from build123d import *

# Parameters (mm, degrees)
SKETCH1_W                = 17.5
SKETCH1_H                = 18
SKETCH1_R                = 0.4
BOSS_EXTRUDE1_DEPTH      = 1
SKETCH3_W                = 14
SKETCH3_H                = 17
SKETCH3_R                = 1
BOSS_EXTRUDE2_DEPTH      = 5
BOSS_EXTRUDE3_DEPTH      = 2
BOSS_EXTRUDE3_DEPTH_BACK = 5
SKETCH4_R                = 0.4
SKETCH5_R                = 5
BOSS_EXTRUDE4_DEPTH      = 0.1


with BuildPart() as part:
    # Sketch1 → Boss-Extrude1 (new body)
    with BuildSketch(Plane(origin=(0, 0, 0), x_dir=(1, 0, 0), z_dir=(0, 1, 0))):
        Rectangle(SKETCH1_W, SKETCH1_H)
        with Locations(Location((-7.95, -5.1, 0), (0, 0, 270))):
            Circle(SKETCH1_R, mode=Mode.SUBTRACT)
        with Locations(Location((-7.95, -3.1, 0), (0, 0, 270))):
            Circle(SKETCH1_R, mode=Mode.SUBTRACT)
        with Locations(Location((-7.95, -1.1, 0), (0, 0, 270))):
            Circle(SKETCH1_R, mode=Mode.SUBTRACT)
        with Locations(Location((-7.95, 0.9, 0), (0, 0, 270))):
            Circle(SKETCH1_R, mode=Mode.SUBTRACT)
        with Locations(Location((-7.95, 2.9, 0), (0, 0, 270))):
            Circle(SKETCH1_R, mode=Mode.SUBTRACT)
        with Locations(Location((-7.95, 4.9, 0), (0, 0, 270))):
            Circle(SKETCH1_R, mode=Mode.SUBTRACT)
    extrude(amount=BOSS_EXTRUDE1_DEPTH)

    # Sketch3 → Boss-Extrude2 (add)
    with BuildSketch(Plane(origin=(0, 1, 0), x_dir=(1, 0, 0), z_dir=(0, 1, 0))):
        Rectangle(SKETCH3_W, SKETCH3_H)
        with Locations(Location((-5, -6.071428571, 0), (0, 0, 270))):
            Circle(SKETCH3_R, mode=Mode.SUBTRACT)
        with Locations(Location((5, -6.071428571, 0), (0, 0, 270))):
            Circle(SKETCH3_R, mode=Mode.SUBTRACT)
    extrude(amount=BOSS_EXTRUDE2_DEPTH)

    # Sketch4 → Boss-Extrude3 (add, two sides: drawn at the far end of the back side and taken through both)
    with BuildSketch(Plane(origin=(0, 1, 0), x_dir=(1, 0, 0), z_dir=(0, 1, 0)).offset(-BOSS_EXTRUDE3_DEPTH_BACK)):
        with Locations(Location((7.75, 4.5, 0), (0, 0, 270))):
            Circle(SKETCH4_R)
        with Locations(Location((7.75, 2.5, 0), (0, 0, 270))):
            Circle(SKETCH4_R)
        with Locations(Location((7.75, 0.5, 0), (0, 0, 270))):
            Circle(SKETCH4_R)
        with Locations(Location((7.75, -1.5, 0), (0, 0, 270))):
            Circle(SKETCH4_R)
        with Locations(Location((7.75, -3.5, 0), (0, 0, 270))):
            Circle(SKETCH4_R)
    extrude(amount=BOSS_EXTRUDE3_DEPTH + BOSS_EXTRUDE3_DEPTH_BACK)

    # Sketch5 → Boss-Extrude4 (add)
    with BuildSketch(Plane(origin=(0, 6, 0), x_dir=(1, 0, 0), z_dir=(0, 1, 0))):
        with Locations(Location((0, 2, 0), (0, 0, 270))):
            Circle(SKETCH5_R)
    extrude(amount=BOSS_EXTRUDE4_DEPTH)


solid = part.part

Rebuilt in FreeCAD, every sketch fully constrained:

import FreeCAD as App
import Part
import Sketcher
from FreeCAD import Vector
Q = App.Units.Quantity

doc = App.newDocument("Part")
body = doc.addObject("PartDesign::Body", "Body")

# Sketch on XZ plane
sketch1 = doc.addObject("Sketcher::SketchObject", "Sketch")
body.addObject(sketch1)
sketch1.AttachmentSupport = (doc.XZ_Plane, [""])
sketch1.MapMode = "FlatFace"
sketch1.addGeometry([
    Part.LineSegment(Vector(-8.75, -9, 0), Vector(-8.75, 9, 0)),  # 0
    Part.LineSegment(Vector(-8.75, 9, 0), Vector(8.75, 9, 0)),  # 1
    Part.LineSegment(Vector(8.75, 9, 0), Vector(8.75, -9, 0)),  # 2
    Part.LineSegment(Vector(8.75, -9, 0), Vector(-8.75, -9, 0)),  # 3
    Part.Circle(Vector(-7.95, 5.1, 0), Vector(0, 0, 1), 0.4),  # 4
    Part.Circle(Vector(-7.95, 3.1, 0), Vector(0, 0, 1), 0.4),  # 5
    Part.Circle(Vector(-7.95, 1.1, 0), Vector(0, 0, 1), 0.4),  # 6
    Part.Circle(Vector(-7.95, -4.9, 0), Vector(0, 0, 1), 0.4),  # 7
    Part.Circle(Vector(-7.95, -0.9, 0), Vector(0, 0, 1), 0.4),  # 8
    Part.Circle(Vector(-7.95, -2.9, 0), Vector(0, 0, 1), 0.4),  # 9
], False)
sketch1.addConstraint([
    Sketcher.Constraint("Coincident", 0, 2, 1, 1),
    Sketcher.Constraint("Coincident", 1, 2, 2, 1),
    Sketcher.Constraint("Coincident", 2, 2, 3, 1),
    Sketcher.Constraint("Coincident", 3, 2, 0, 1),
    Sketcher.Constraint("Vertical", 0),
    Sketcher.Constraint("Horizontal", 1),
    Sketcher.Constraint("Vertical", 2),
    Sketcher.Constraint("Horizontal", 3),
    Sketcher.Constraint("Equal", 4, 5),
    Sketcher.Constraint("Equal", 5, 6),
    Sketcher.Constraint("Equal", 6, 7),
    Sketcher.Constraint("Equal", 7, 8),
    Sketcher.Constraint("Equal", 8, 9),
    Sketcher.Constraint("Symmetric", 0, 2, 2, 2, -1, 1),
    Sketcher.Constraint("Vertical", 4, 3, 5, 3),
    Sketcher.Constraint("Vertical", 5, 3, 6, 3),
    Sketcher.Constraint("Vertical", 6, 3, 7, 3),
    Sketcher.Constraint("Vertical", 7, 3, 8, 3),
    Sketcher.Constraint("Vertical", 8, 3, 9, 3),
    Sketcher.Constraint("Diameter", 4, Q("0.8 mm")),
    Sketcher.Constraint("DistanceY", 0, 1, 0, 2, Q("18 mm")),
    Sketcher.Constraint("DistanceX", 1, 1, 1, 2, Q("17.5 mm")),
    Sketcher.Constraint("DistanceY", 5, 3, 4, 3, Q("2 mm")),
    Sketcher.Constraint("DistanceY", 6, 3, 5, 3, Q("2 mm")),
    Sketcher.Constraint("DistanceY", 7, 3, 6, 3, Q("6 mm")),
    Sketcher.Constraint("DistanceY", 8, 3, 6, 3, Q("2 mm")),
    Sketcher.Constraint("DistanceY", 9, 3, 8, 3, Q("2 mm")),
    Sketcher.Constraint("DistanceY", -1, 1, 4, 3, Q("5.1 mm")),
    Sketcher.Constraint("DistanceX", 0, 2, 4, 3, Q("0.8 mm")),
])
pad1 = doc.addObject("PartDesign::Pad", "Pad")
body.addObject(pad1)
pad1.Profile = sketch1
pad1.Length = 1
pad1.Reversed = True

# Sketch on XZ plane
sketch2 = doc.addObject("Sketcher::SketchObject", "Sketch001")
body.addObject(sketch2)
sketch2.AttachmentSupport = (doc.XZ_Plane, [""])
sketch2.MapMode = "FlatFace"
sketch2.AttachmentOffset = App.Placement(Vector(0, 0, -1), App.Rotation())
sketch2.addGeometry([
    Part.LineSegment(Vector(-7, -8.5, 0), Vector(-7, 8.5, 0)),  # 0
    Part.LineSegment(Vector(-7, 8.5, 0), Vector(7, 8.5, 0)),  # 1
    Part.LineSegment(Vector(7, 8.5, 0), Vector(7, -8.5, 0)),  # 2
    Part.LineSegment(Vector(7, -8.5, 0), Vector(-7, -8.5, 0)),  # 3
    Part.Circle(Vector(-5, 6.1, 0), Vector(0, 0, 1), 1),  # 4
    Part.Circle(Vector(5, 6.1, 0), Vector(0, 0, 1), 1),  # 5
], False)
sketch2.addConstraint([
    Sketcher.Constraint("Coincident", 0, 2, 1, 1),
    Sketcher.Constraint("Coincident", 1, 2, 2, 1),
    Sketcher.Constraint("Coincident", 2, 2, 3, 1),
    Sketcher.Constraint("Coincident", 3, 2, 0, 1),
    Sketcher.Constraint("Vertical", 0),
    Sketcher.Constraint("Horizontal", 1),
    Sketcher.Constraint("Vertical", 2),
    Sketcher.Constraint("Horizontal", 3),
    Sketcher.Constraint("Equal", 4, 5),
    Sketcher.Constraint("Symmetric", 0, 2, 2, 2, -1, 1),
    Sketcher.Constraint("Symmetric", 4, 3, 5, 3, -2),
    Sketcher.Constraint("Diameter", 4, Q("2 mm")),
    Sketcher.Constraint("DistanceX", 1, 1, 1, 2, Q("14 mm")),
    Sketcher.Constraint("DistanceY", 0, 1, 0, 2, Q("17 mm")),
    Sketcher.Constraint("DistanceX", 4, 3, -1, 1, Q("5 mm")),
    Sketcher.Constraint("DistanceY", -1, 1, 4, 3, Q("6.071429 mm")),
])
pad2 = doc.addObject("PartDesign::Pad", "Pad001")
body.addObject(pad2)
pad2.Profile = sketch2
pad2.Length = 5
pad2.Reversed = True

# Sketch on XZ plane
sketch3 = doc.addObject("Sketcher::SketchObject", "Sketch002")
body.addObject(sketch3)
sketch3.AttachmentSupport = (doc.XZ_Plane, [""])
sketch3.MapMode = "FlatFace"
sketch3.AttachmentOffset = App.Placement(Vector(0, 0, -1), App.Rotation())
sketch3.addGeometry([
    Part.Circle(Vector(7.75, -4.5, 0), Vector(0, 0, 1), 0.4),  # 0
    Part.Circle(Vector(7.75, -2.5, 0), Vector(0, 0, 1), 0.4),  # 1
    Part.Circle(Vector(7.75, -0.5, 0), Vector(0, 0, 1), 0.4),  # 2
    Part.Circle(Vector(7.75, 1.5, 0), Vector(0, 0, 1), 0.4),  # 3
    Part.Circle(Vector(7.75, 3.5, 0), Vector(0, 0, 1), 0.4),  # 4
], False)
sketch3.addConstraint([
    Sketcher.Constraint("Equal", 0, 1),
    Sketcher.Constraint("Equal", 1, 2),
    Sketcher.Constraint("Equal", 2, 3),
    Sketcher.Constraint("Equal", 3, 4),
    Sketcher.Constraint("Vertical", 0, 3, 1, 3),
    Sketcher.Constraint("Vertical", 1, 3, 2, 3),
    Sketcher.Constraint("Vertical", 2, 3, 3, 3),
    Sketcher.Constraint("Vertical", 3, 3, 4, 3),
    Sketcher.Constraint("Diameter", 0, Q("0.8 mm")),
    Sketcher.Constraint("DistanceY", 0, 3, 1, 3, Q("2 mm")),
    Sketcher.Constraint("DistanceY", 1, 3, 2, 3, Q("2 mm")),
    Sketcher.Constraint("DistanceY", 2, 3, 3, 3, Q("2 mm")),
    Sketcher.Constraint("DistanceY", 3, 3, 4, 3, Q("2 mm")),
    Sketcher.Constraint("DistanceY", 0, 3, -1, 1, Q("4.5 mm")),
    Sketcher.Constraint("DistanceX", -1, 1, 0, 3, Q("7.75 mm")),
])
pad3 = doc.addObject("PartDesign::Pad", "Pad002")
body.addObject(pad3)
pad3.Profile = sketch3
pad3.Type = "TwoLengths"
pad3.Length = 2
pad3.Length2 = 5
pad3.Reversed = True

# Sketch on XZ plane
sketch4 = doc.addObject("Sketcher::SketchObject", "Sketch003")
body.addObject(sketch4)
sketch4.AttachmentSupport = (doc.XZ_Plane, [""])
sketch4.MapMode = "FlatFace"
sketch4.AttachmentOffset = App.Placement(Vector(0, 0, -6), App.Rotation())
sketch4.addGeometry(Part.Circle(Vector(0, -2, 0), Vector(0, 0, 1), 5), False)
sketch4.addConstraint([
    Sketcher.Constraint("PointOnObject", 0, 3, -2),
    Sketcher.Constraint("Diameter", 0, Q("10 mm")),
    Sketcher.Constraint("DistanceY", 0, 3, -1, 1, Q("2 mm")),
])
pad4 = doc.addObject("PartDesign::Pad", "Pad003")
body.addObject(pad4)
pad4.Profile = sketch4
pad4.Length = 0.1
pad4.Reversed = True

doc.recompute()
